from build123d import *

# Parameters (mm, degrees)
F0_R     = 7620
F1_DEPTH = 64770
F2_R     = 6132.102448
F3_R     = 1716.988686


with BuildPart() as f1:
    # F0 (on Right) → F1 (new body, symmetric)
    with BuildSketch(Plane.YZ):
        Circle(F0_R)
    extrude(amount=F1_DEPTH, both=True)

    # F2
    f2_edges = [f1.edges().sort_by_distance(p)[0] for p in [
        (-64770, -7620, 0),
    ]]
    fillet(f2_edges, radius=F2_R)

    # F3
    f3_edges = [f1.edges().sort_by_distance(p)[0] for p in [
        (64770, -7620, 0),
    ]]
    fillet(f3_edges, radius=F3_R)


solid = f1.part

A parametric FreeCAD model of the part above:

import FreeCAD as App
import Part
import Sketcher

V = App.Vector
Q = App.Units.Quantity


def edges_at(feature, points):
    """Names of the edges that pass closest to the given points."""
    edges = feature.Shape.Edges
    near = lambda p: min(range(len(edges)), key=lambda i: edges[i].distToShape(Part.Vertex(*p))[0])
    return sorted({f"Edge{near(p) + 1}" for p in points})

doc = App.newDocument("Part")
body = doc.addObject("PartDesign::Body", "Body")

# Sketch on YZ plane
sketch1 = body.newObject("Sketcher::SketchObject", "Sketch")
sketch1.AttachmentSupport = (doc.getObject("YZ_Plane"), [""])
sketch1.MapMode = "FlatFace"
sketch1.addGeometry(Part.Circle(V(0, 0, 0), V(0, 0, 1), 7620), False)
sketch1.addConstraint([
    Sketcher.Constraint("Coincident", 0, 3, -1, 1),
    Sketcher.Constraint("Diameter", 0, Q("600 in")),
])
pad1 = body.newObject("PartDesign::Pad", "Pad")
pad1.Profile = sketch1
pad1.Length = Q("5100 in")
pad1.Midplane = True
doc.recompute()

fillet = body.newObject("PartDesign::Fillet", "Fillet")
fillet.Base = (pad1, edges_at(pad1, [(-64770, -7620, 0)]))
fillet.Radius = 6132.102448
doc.recompute()

fillet2 = body.newObject("PartDesign::Fillet", "Fillet001")
fillet2.Base = (fillet, edges_at(fillet, [(64770, -7620, 0)]))
fillet2.Radius = 1716.988686

doc.recompute()
